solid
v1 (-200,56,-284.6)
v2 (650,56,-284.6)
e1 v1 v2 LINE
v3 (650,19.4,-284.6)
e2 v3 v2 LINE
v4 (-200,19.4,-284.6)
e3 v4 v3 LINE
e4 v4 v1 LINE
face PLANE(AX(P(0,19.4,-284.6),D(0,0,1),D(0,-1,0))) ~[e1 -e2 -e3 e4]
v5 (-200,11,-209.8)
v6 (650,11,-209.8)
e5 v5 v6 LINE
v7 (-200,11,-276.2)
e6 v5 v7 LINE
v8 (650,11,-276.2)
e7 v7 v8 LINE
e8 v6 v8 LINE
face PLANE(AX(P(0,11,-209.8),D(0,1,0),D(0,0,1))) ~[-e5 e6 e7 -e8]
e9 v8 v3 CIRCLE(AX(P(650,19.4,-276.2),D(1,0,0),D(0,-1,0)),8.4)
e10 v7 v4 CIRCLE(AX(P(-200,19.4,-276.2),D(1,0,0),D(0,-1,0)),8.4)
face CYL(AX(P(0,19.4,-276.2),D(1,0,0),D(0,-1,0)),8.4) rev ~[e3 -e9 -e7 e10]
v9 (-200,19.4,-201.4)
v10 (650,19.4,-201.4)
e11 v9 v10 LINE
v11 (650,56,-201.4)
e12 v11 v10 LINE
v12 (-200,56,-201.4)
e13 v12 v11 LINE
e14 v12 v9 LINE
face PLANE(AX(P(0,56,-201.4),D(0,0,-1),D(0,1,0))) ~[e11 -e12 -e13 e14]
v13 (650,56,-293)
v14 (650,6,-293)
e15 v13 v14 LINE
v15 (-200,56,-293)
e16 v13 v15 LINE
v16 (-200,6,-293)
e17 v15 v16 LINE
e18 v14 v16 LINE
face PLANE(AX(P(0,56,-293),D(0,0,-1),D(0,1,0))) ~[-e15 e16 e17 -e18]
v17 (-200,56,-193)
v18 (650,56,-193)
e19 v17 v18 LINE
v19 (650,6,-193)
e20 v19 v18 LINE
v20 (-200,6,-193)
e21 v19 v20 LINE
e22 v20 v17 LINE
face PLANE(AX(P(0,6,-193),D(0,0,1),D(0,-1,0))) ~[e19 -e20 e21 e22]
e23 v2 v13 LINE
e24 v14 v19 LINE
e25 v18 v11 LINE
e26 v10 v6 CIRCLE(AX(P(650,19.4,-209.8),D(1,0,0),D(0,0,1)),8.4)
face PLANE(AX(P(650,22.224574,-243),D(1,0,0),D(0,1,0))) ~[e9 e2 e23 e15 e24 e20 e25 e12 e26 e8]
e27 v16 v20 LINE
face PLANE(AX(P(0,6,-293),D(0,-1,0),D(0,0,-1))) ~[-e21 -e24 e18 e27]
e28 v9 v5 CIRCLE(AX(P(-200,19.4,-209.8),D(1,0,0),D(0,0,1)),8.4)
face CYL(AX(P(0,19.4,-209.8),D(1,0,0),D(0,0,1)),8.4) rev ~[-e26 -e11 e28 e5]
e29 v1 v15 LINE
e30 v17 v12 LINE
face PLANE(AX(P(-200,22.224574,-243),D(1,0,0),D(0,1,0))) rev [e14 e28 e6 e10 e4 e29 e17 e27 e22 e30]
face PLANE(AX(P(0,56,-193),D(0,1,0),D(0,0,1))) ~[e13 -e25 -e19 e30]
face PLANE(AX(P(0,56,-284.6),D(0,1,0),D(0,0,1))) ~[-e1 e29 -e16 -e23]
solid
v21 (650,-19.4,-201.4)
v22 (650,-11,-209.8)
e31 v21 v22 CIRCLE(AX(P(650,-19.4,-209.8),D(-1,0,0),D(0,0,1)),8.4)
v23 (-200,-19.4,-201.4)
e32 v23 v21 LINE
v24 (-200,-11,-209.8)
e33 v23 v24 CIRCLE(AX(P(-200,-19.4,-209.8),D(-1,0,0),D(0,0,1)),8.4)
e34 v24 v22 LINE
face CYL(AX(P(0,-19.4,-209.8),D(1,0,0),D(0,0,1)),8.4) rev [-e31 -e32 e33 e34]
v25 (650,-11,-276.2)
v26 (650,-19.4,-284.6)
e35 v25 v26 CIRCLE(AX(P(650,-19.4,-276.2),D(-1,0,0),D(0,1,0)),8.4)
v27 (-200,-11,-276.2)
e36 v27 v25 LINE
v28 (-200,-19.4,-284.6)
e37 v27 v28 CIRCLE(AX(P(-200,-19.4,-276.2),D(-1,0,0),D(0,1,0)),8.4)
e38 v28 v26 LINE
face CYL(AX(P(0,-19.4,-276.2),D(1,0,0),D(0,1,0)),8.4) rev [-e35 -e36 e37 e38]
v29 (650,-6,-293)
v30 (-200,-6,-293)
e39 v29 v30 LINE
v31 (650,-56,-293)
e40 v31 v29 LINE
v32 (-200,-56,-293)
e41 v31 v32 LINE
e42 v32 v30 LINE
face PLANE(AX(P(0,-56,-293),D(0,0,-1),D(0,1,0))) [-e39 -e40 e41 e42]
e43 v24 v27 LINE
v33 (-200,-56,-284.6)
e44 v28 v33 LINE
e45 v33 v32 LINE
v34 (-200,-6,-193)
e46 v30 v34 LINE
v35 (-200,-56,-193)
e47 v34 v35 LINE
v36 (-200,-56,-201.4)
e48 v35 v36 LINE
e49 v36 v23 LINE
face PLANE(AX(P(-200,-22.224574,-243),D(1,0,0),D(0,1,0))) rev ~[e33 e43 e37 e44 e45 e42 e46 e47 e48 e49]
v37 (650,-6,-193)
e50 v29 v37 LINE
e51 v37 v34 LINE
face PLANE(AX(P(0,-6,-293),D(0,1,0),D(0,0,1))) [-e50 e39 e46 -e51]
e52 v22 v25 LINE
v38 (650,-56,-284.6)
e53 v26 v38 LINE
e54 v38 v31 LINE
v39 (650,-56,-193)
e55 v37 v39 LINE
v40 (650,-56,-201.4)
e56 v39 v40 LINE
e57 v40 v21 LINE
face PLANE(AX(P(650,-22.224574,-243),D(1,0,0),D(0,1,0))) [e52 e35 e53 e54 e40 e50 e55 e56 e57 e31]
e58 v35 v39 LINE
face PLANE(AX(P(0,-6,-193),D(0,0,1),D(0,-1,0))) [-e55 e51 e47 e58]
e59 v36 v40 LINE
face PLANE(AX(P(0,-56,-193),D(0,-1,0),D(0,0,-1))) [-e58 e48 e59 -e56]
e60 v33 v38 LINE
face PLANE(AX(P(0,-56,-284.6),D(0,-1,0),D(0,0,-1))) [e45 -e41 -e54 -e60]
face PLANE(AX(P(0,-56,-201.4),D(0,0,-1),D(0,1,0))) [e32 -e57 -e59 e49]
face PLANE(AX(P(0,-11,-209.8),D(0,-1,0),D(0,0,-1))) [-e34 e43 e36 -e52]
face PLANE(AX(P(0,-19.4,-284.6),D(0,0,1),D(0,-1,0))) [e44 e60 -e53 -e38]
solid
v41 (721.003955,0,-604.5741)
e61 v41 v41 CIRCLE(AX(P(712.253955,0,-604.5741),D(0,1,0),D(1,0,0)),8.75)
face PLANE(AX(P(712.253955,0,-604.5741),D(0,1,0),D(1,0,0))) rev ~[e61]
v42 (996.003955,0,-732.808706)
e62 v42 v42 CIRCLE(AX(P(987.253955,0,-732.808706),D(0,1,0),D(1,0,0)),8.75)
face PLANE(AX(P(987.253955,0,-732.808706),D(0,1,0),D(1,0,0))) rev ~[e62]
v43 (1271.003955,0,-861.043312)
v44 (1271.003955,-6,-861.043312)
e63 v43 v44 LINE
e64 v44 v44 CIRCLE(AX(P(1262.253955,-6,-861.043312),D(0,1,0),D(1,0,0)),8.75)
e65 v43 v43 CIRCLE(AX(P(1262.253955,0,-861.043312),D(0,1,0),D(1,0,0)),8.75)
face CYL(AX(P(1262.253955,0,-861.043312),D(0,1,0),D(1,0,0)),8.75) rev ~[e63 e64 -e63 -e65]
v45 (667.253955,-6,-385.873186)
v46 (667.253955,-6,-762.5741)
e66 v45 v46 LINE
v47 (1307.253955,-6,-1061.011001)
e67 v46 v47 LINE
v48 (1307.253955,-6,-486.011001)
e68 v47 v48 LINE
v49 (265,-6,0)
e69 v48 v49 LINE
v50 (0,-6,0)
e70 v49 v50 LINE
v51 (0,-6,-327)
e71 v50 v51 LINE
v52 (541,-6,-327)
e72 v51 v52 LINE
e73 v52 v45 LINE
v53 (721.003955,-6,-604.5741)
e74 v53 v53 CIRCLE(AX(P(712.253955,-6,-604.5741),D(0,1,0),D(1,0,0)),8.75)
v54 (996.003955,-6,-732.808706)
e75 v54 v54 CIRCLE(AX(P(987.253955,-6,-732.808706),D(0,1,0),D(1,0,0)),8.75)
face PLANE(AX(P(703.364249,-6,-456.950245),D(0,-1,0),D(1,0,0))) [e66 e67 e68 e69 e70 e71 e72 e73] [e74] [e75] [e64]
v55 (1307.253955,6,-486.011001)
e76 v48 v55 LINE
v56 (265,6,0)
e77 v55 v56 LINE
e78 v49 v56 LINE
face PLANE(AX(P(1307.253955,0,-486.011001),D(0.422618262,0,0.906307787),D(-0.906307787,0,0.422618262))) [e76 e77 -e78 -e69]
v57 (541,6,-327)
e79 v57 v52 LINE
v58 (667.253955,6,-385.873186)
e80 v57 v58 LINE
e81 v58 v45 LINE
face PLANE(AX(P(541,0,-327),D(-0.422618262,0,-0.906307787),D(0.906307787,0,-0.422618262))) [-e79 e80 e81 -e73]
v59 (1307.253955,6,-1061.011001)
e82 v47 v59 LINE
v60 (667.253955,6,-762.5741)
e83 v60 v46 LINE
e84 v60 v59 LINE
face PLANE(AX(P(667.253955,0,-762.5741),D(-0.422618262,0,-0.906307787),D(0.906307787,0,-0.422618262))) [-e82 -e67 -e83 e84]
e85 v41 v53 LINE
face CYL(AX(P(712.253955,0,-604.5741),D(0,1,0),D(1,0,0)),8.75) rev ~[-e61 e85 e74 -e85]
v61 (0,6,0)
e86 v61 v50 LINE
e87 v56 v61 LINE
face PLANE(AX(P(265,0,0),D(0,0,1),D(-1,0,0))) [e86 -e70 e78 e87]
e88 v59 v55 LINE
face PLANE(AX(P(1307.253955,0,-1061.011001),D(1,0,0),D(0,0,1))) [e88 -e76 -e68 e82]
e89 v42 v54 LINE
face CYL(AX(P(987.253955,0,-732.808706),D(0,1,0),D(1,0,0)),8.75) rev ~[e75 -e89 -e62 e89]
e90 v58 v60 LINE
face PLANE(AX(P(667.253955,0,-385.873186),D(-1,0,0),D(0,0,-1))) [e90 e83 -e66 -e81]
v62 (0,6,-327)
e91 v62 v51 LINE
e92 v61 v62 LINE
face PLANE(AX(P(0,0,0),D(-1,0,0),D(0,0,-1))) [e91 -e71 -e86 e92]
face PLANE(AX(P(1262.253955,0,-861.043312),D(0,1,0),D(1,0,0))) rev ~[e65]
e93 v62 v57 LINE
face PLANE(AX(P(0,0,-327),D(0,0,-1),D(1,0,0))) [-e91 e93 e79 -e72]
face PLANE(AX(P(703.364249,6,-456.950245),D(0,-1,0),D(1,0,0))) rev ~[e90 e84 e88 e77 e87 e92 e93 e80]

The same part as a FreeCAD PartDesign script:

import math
import FreeCAD as App
import Part
import Sketcher

V = App.Vector
Q = App.Units.Quantity


def add_polygon(sketch, points):
    """Adds a closed chain of lines whose ends are joined by coincident constraints."""
    first, n = sketch.GeometryCount, len(points)
    for a, b in zip(points, points[1:] + points[:1]):
        sketch.addGeometry(Part.LineSegment(App.Vector(*a, 0), App.Vector(*b, 0)), False)
    for i in range(n):
        sketch.addConstraint(Sketcher.Constraint("Coincident", first + i, 2, first + (i + 1) % n, 1))

doc = App.newDocument("Part")
params = doc.addObject("Spreadsheet::Sheet", "Params")
for row, (alias, value) in enumerate([
    ("sketch1_width", "265 mm"),
    ("sketch1_width2", "541 mm"),
    ("sketch1_height", "327 mm"),
    ("sketch1_height2", "575 mm"),
    ("sketch1_length", "1150 mm"),
    ("pad1_length", "12 mm"),
    ("sketch2_diameter", "17.5 mm"),
    ("sketch3_radius", "8.4 mm"),
    ("sketch3_width", "50 mm"),
    ("sketch3_height", "100 mm"),
    ("sketch3_width2", "36.6 mm"),
    ("sketch3_height2", "8.4 mm"),
    ("pad2_length", "650 mm"),
    ("pad2_length2", "200 mm"),
], start=1):
    params.set(f"A{row}", alias)
    params.set(f"B{row}", "=" + value)
    params.setAlias(f"B{row}", alias)

body = doc.addObject("PartDesign::Body", "Body")

# Sketch on XZ plane
sketch1 = body.newObject("Sketcher::SketchObject", "Sketch")
sketch1.AttachmentSupport = (doc.getObject("XZ_Plane"), [""])
sketch1.MapMode = "FlatFace"
add_polygon(sketch1, [(265, 0), (0, 0), (0, -327), (541, -327), (667.253955, -385.873186), (667.253955, -762.5741), (1307.253955, -1061.011001), (1307.253955, -486.011001)])  # lines 0-7
sketch1.addConstraint([
    Sketcher.Constraint("Horizontal", 0),
    Sketcher.Constraint("Vertical", 1),
    Sketcher.Constraint("Horizontal", 2),
    Sketcher.Constraint("Vertical", 4),
    Sketcher.Constraint("Vertical", 6),
    Sketcher.Constraint("Coincident", 0, 2, -1, 1),
    Sketcher.Constraint("Parallel", 3, 5),
    Sketcher.Constraint("Parallel", 5, 7),
    Sketcher.Constraint("DistanceX", 0, 2, 0, 1, Q("265 mm")),
    Sketcher.Constraint("DistanceX", 2, 1, 2, 2, Q("541 mm")),
    Sketcher.Constraint("DistanceY", 1, 2, 1, 1, Q("327 mm")),
    Sketcher.Constraint("DistanceY", 6, 1, 6, 2, Q("575 mm")),
    Sketcher.Constraint("Angle", 3, Q("-25 deg")),
    Sketcher.Constraint("Distance", 7, Q("1150 mm")),
    Sketcher.Constraint("DistanceX", 4, 2, 5, 2, Q("640 mm")),
])
sketch1.setExpression("Constraints[16]", "Params.sketch1_width")
sketch1.setExpression("Constraints[17]", "Params.sketch1_width2")
sketch1.setExpression("Constraints[18]", "Params.sketch1_height")
sketch1.setExpression("Constraints[19]", "Params.sketch1_height2")
sketch1.setExpression("Constraints[21]", "Params.sketch1_length")
pad1 = body.newObject("PartDesign::Pad", "Pad")
pad1.Profile = sketch1
pad1.setExpression("Length", "Params.pad1_length")
pad1.Midplane = True

# Sketch on XZ plane
sketch2 = body.newObject("Sketcher::SketchObject", "Sketch001")
sketch2.AttachmentSupport = (doc.getObject("XZ_Plane"), [""])
sketch2.MapMode = "FlatFace"
sketch2.addGeometry([
    Part.Circle(V(1262.253955, -861.043312, 0), V(0, 0, 1), 8.75),
    Part.Circle(V(712.253955, -604.5741, 0), V(0, 0, 1), 8.75),
    Part.Circle(V(987.253955, -732.808706, 0), V(0, 0, 1), 8.75),
], False)
sketch2.addConstraint([
    Sketcher.Constraint("Equal", 0, 1),
    Sketcher.Constraint("Equal", 1, 2),
    Sketcher.Constraint("Diameter", 0, Q("17.5 mm")),
    Sketcher.Constraint("DistanceX", 1, 3, 0, 3, Q("550 mm")),
    Sketcher.Constraint("DistanceX", 1, 3, 2, 3, Q("275 mm")),
    Sketcher.Constraint("DistanceY", 1, 3, -1, 1, Q("604.5741 mm")),
    Sketcher.Constraint("DistanceY", 0, 3, -1, 1, Q("861.043312 mm")),
    Sketcher.Constraint("DistanceX", -1, 1, 0, 3, Q("1262.253955 mm")),
    Sketcher.Constraint("DistanceY", 2, 3, -1, 1, Q("732.808706 mm")),
])
sketch2.setExpression("Constraints[2]", "Params.sketch2_diameter")
pocket1 = body.newObject("PartDesign::Pocket", "Pocket")
pocket1.Profile = sketch2
pocket1.Type = "ThroughAll"
pocket1.Reversed = True
body2 = doc.addObject("PartDesign::Body", "Body001")

# Sketch on YZ plane
sketch3 = body2.newObject("Sketcher::SketchObject", "Sketch002")
sketch3.AttachmentSupport = (doc.getObject("YZ_Plane001"), [""])
sketch3.MapMode = "FlatFace"
sketch3.addGeometry([
    Part.LineSegment(V(-6, -193, 0), V(-56, -193, 0)),  # 0
    Part.LineSegment(V(-56, -193, 0), V(-56, -201.4, 0)),  # 1
    Part.LineSegment(V(-56, -201.4, 0), V(-19.4, -201.4, 0)),  # 2
    Part.ArcOfCircle(Part.Circle(V(-19.4, -209.8, 0), V(0, 0, 1), 8.4), math.radians(0), math.radians(90)),  # 3
    Part.LineSegment(V(-11, -209.8, 0), V(-11, -276.2, 0)),  # 4
    Part.ArcOfCircle(Part.Circle(V(-19.4, -276.2, 0), V(0, 0, 1), 8.4), math.radians(-90), math.radians(0)),  # 5
    Part.LineSegment(V(-19.4, -284.6, 0), V(-56, -284.6, 0)),  # 6
    Part.LineSegment(V(-56, -284.6, 0), V(-56, -293, 0)),  # 7
    Part.LineSegment(V(-56, -293, 0), V(-6, -293, 0)),  # 8
    Part.LineSegment(V(-6, -293, 0), V(-6, -193, 0)),  # 9
], False)
sketch3.addConstraint([
    Sketcher.Constraint("Coincident", 0, 2, 1, 1),
    Sketcher.Constraint("Coincident", 1, 2, 2, 1),
    Sketcher.Constraint("Tangent", 2, 2, 3, 2),
    Sketcher.Constraint("Tangent", 3, 1, 4, 1),
    Sketcher.Constraint("Tangent", 4, 2, 5, 2),
    Sketcher.Constraint("Tangent", 5, 1, 6, 1),
    Sketcher.Constraint("Coincident", 6, 2, 7, 1),
    Sketcher.Constraint("Coincident", 7, 2, 8, 1),
    Sketcher.Constraint("Coincident", 8, 2, 9, 1),
    Sketcher.Constraint("Coincident", 9, 2, 0, 1),
    Sketcher.Constraint("Horizontal", 0),
    Sketcher.Constraint("Vertical", 1),
    Sketcher.Constraint("Horizontal", 2),
    Sketcher.Constraint("Vertical", 4),
    Sketcher.Constraint("Horizontal", 6),
    Sketcher.Constraint("Vertical", 7),
    Sketcher.Constraint("Horizontal", 8),
    Sketcher.Constraint("Vertical", 9),
    Sketcher.Constraint("Equal", 3, 5),
    Sketcher.Constraint("Vertical", 1, 2, 6, 2),
    Sketcher.Constraint("Equal", 1, 7),
    Sketcher.Constraint("Radius", 3, Q("8.4 mm")),
    Sketcher.Constraint("DistanceX", 0, 2, 0, 1, Q("50 mm")),
    Sketcher.Constraint("DistanceY", 9, 1, 9, 2, Q("100 mm")),
    Sketcher.Constraint("DistanceX", 2, 1, 2, 2, Q("36.6 mm")),
    Sketcher.Constraint("DistanceY", 1, 2, 1, 1, Q("8.4 mm")),
    Sketcher.Constraint("DistanceX", 0, 2, -1, 1, Q("56 mm")),
    Sketcher.Constraint("DistanceY", 0, 2, -1, 1, Q("193 mm")),
])
sketch3.setExpression("Constraints[21]", "Params.sketch3_radius")
sketch3.setExpression("Constraints[22]", "Params.sketch3_width")
sketch3.setExpression("Constraints[23]", "Params.sketch3_height")
sketch3.setExpression("Constraints[24]", "Params.sketch3_width2")
sketch3.setExpression("Constraints[25]", "Params.sketch3_height2")
pad2 = body2.newObject("PartDesign::Pad", "Pad001")
pad2.Profile = sketch3
pad2.Type = "TwoLengths"
pad2.setExpression("Length", "Params.pad2_length")
pad2.setExpression("Length2", "Params.pad2_length2")
body3 = doc.addObject("PartDesign::Body", "Body002")
doc.recompute()

mirroring = doc.addObject("Part::Mirroring", "Mirroring")
mirroring.Source = body2
mirroring.Base = V(0, 0, 0)
mirroring.Normal = V(0, -1, 0)
body3.BaseFeature = mirroring
doc.recompute()
mirroring.Visibility = False

doc.recompute()
